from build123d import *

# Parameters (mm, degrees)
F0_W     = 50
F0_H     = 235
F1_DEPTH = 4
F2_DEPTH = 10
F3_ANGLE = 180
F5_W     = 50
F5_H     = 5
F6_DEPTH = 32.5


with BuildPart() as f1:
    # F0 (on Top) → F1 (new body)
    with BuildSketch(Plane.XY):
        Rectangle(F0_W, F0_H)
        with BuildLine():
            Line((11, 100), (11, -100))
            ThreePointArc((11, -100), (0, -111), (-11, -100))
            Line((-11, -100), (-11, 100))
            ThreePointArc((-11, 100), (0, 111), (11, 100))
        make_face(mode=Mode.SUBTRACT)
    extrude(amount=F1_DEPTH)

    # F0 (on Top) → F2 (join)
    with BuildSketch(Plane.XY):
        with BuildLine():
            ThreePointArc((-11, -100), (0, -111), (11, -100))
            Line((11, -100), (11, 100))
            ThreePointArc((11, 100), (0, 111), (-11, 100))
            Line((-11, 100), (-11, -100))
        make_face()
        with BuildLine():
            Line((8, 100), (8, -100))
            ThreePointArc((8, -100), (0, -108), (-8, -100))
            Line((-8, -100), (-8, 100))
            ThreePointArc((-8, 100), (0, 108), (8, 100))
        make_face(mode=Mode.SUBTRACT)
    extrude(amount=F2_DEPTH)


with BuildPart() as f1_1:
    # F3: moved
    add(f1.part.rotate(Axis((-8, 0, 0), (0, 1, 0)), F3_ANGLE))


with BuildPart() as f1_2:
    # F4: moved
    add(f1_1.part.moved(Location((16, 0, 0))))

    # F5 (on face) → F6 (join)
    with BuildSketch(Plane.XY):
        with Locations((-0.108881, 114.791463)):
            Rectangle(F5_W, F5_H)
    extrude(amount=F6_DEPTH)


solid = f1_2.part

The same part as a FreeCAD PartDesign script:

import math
import FreeCAD as App
import Part
import Sketcher
from FreeCAD import Vector

doc = App.newDocument("Part")
body = doc.addObject("PartDesign::Body", "Body")

sketch1 = doc.addObject("Sketcher::SketchObject", "Sketch")
body.addObject(sketch1)
sketch1.AttachmentSupport = (doc.XY_Plane, [""])
sketch1.MapMode = "FlatFace"
sketch1.addGeometry(Part.LineSegment(Vector(-25, 117.5, 0), Vector(-25, -117.5, 0)), False)
sketch1.addGeometry(Part.LineSegment(Vector(-25, -117.5, 0), Vector(25, -117.5, 0)), False)
sketch1.addGeometry(Part.LineSegment(Vector(25, -117.5, 0), Vector(25, 117.5, 0)), False)
sketch1.addGeometry(Part.LineSegment(Vector(25, 117.5, 0), Vector(-25, 117.5, 0)), False)
sketch1.addGeometry(Part.ArcOfCircle(Part.Circle(Vector(0, 100, 0), Vector(0, 0, 1), 11), math.radians(0), math.radians(180)), False)
sketch1.addGeometry(Part.LineSegment(Vector(11, 100, 0), Vector(11, -100, 0)), False)
sketch1.addGeometry(Part.ArcOfCircle(Part.Circle(Vector(0, -100, 0), Vector(0, 0, 1), 11), math.radians(180), math.radians(360)), False)
sketch1.addGeometry(Part.LineSegment(Vector(-11, -100, 0), Vector(-11, 100, 0)), False)
sketch1.addConstraint(Sketcher.Constraint("Coincident", 0, 2, 1, 1))
sketch1.addConstraint(Sketcher.Constraint("Coincident", 1, 2, 2, 1))
sketch1.addConstraint(Sketcher.Constraint("Coincident", 2, 2, 3, 1))
sketch1.addConstraint(Sketcher.Constraint("Coincident", 3, 2, 0, 1))
sketch1.addConstraint(Sketcher.Constraint("Tangent", 4, 1, 5, 1))
sketch1.addConstraint(Sketcher.Constraint("Tangent", 5, 2, 6, 2))
sketch1.addConstraint(Sketcher.Constraint("Tangent", 6, 1, 7, 1))
sketch1.addConstraint(Sketcher.Constraint("Tangent", 7, 2, 4, 2))
sketch1.addConstraint(Sketcher.Constraint("Vertical", 0))
sketch1.addConstraint(Sketcher.Constraint("Horizontal", 1))
sketch1.addConstraint(Sketcher.Constraint("Vertical", 2))
sketch1.addConstraint(Sketcher.Constraint("Horizontal", 3))
sketch1.addConstraint(Sketcher.Constraint("Vertical", 5))
sketch1.addConstraint(Sketcher.Constraint("Vertical", 7))
sketch1.addConstraint(Sketcher.Constraint("Symmetric", 4, 3, 6, 3, -1, 1))
sketch1.addConstraint(Sketcher.Constraint("Symmetric", 0, 2, 2, 2, -1, 1))
sketch1.addConstraint(Sketcher.Constraint("Radius", 4, 11.0))
sketch1.addConstraint(Sketcher.Constraint("DistanceX", 1, 1, 1, 2, 50.0))
sketch1.addConstraint(Sketcher.Constraint("DistanceY", 0, 2, 0, 1, 235.0))
sketch1.addConstraint(Sketcher.Constraint("DistanceY", 5, 2, 5, 1, 200.0))
pad1 = doc.addObject("PartDesign::Pad", "Pad")
body.addObject(pad1)
pad1.Profile = sketch1
pad1.Length = 4

sketch2 = doc.addObject("Sketcher::SketchObject", "Sketch001")
body.addObject(sketch2)
sketch2.AttachmentSupport = (doc.XY_Plane, [""])
sketch2.MapMode = "FlatFace"
sketch2.addGeometry(Part.ArcOfCircle(Part.Circle(Vector(0, -100, 0), Vector(0, 0, 1), 11), math.radians(180), math.radians(360)), False)
sketch2.addGeometry(Part.LineSegment(Vector(11, -100, 0), Vector(11, 100, 0)), False)
sketch2.addGeometry(Part.ArcOfCircle(Part.Circle(Vector(0, 100, 0), Vector(0, 0, 1), 11), math.radians(0), math.radians(180)), False)
sketch2.addGeometry(Part.LineSegment(Vector(-11, 100, 0), Vector(-11, -100, 0)), False)
sketch2.addGeometry(Part.ArcOfCircle(Part.Circle(Vector(0, 100, 0), Vector(0, 0, 1), 8), math.radians(0), math.radians(180)), False)
sketch2.addGeometry(Part.LineSegment(Vector(8, 100, 0), Vector(8, -100, 0)), False)
sketch2.addGeometry(Part.ArcOfCircle(Part.Circle(Vector(0, -100, 0), Vector(0, 0, 1), 8), math.radians(180), math.radians(360)), False)
sketch2.addGeometry(Part.LineSegment(Vector(-8, -100, 0), Vector(-8, 100, 0)), False)
sketch2.addConstraint(Sketcher.Constraint("Tangent", 0, 2, 1, 1))
sketch2.addConstraint(Sketcher.Constraint("Tangent", 1, 2, 2, 1))
sketch2.addConstraint(Sketcher.Constraint("Tangent", 2, 2, 3, 1))
sketch2.addConstraint(Sketcher.Constraint("Tangent", 3, 2, 0, 1))
sketch2.addConstraint(Sketcher.Constraint("Tangent", 4, 1, 5, 1))
sketch2.addConstraint(Sketcher.Constraint("Tangent", 5, 2, 6, 2))
sketch2.addConstraint(Sketcher.Constraint("Tangent", 6, 1, 7, 1))
sketch2.addConstraint(Sketcher.Constraint("Tangent", 7, 2, 4, 2))
sketch2.addConstraint(Sketcher.Constraint("Vertical", 1))
sketch2.addConstraint(Sketcher.Constraint("Vertical", 3))
sketch2.addConstraint(Sketcher.Constraint("Vertical", 5))
sketch2.addConstraint(Sketcher.Constraint("Vertical", 7))
sketch2.addConstraint(Sketcher.Constraint("Coincident", 4, 3, 2, 3))
sketch2.addConstraint(Sketcher.Constraint("Symmetric", 0, 3, 2, 3, -1, 1))
sketch2.addConstraint(Sketcher.Constraint("Horizontal", 6, 3, 0, 2))
sketch2.addConstraint(Sketcher.Constraint("Radius", 0, 11.0))
sketch2.addConstraint(Sketcher.Constraint("Radius", 4, 8.0))
sketch2.addConstraint(Sketcher.Constraint("DistanceY", 1, 1, 1, 2, 200.0))
pad2 = doc.addObject("PartDesign::Pad", "Pad001")
body.addObject(pad2)
pad2.Profile = sketch2
pad2.Length = 10
body2 = doc.addObject("PartDesign::Body", "Body001")
doc.recompute()

body.Placement = App.Placement(Vector(-16, 0, 0), App.Rotation(Vector(0, 1, 0), 180))
boolean = doc.addObject("PartDesign::Boolean", "Boolean")
body2.addObject(boolean)
boolean.Type = "Fuse"
boolean.addObjects([body])
body3 = doc.addObject("PartDesign::Body", "Body002")
doc.recompute()

body2.Placement = App.Placement(Vector(16, 0, 0), App.Rotation(Vector(0, 0, 1), 0))
boolean2 = doc.addObject("PartDesign::Boolean", "Boolean001")
body3.addObject(boolean2)
boolean2.Type = "Fuse"
boolean2.addObjects([body2])

sketch3 = doc.addObject("Sketcher::SketchObject", "Sketch002")
body3.addObject(sketch3)
sketch3.AttachmentSupport = (doc.getObject("XY_Plane002"), [""])
sketch3.MapMode = "FlatFace"
sketch3.addGeometry(Part.LineSegment(Vector(-25.108881, 117.291463, 0), Vector(-25.108881, 112.291463, 0)), False)
sketch3.addGeometry(Part.LineSegment(Vector(-25.108881, 112.291463, 0), Vector(24.891119, 112.291463, 0)), False)
sketch3.addGeometry(Part.LineSegment(Vector(24.891119, 112.291463, 0), Vector(24.891119, 117.291463, 0)), False)
sketch3.addGeometry(Part.LineSegment(Vector(24.891119, 117.291463, 0), Vector(-25.108881, 117.291463, 0)), False)
sketch3.addConstraint(Sketcher.Constraint("Coincident", 0, 2, 1, 1))
sketch3.addConstraint(Sketcher.Constraint("Coincident", 1, 2, 2, 1))
sketch3.addConstraint(Sketcher.Constraint("Coincident", 2, 2, 3, 1))
sketch3.addConstraint(Sketcher.Constraint("Coincident", 3, 2, 0, 1))
sketch3.addConstraint(Sketcher.Constraint("Vertical", 0))
sketch3.addConstraint(Sketcher.Constraint("Horizontal", 1))
sketch3.addConstraint(Sketcher.Constraint("Vertical", 2))
sketch3.addConstraint(Sketcher.Constraint("Horizontal", 3))
sketch3.addConstraint(Sketcher.Constraint("DistanceX", 1, 1, 1, 2, 50.0))
sketch3.addConstraint(Sketcher.Constraint("DistanceY", 0, 2, 0, 1, 5.0))
sketch3.addConstraint(Sketcher.Constraint("DistanceX", 0, 2, -1, 1, 25.108881))
sketch3.addConstraint(Sketcher.Constraint("DistanceY", -1, 1, 0, 2, 112.291463))
pad3 = doc.addObject("PartDesign::Pad", "Pad002")
body3.addObject(pad3)
pad3.Profile = sketch3
pad3.Length = 32.5

doc.recompute()
